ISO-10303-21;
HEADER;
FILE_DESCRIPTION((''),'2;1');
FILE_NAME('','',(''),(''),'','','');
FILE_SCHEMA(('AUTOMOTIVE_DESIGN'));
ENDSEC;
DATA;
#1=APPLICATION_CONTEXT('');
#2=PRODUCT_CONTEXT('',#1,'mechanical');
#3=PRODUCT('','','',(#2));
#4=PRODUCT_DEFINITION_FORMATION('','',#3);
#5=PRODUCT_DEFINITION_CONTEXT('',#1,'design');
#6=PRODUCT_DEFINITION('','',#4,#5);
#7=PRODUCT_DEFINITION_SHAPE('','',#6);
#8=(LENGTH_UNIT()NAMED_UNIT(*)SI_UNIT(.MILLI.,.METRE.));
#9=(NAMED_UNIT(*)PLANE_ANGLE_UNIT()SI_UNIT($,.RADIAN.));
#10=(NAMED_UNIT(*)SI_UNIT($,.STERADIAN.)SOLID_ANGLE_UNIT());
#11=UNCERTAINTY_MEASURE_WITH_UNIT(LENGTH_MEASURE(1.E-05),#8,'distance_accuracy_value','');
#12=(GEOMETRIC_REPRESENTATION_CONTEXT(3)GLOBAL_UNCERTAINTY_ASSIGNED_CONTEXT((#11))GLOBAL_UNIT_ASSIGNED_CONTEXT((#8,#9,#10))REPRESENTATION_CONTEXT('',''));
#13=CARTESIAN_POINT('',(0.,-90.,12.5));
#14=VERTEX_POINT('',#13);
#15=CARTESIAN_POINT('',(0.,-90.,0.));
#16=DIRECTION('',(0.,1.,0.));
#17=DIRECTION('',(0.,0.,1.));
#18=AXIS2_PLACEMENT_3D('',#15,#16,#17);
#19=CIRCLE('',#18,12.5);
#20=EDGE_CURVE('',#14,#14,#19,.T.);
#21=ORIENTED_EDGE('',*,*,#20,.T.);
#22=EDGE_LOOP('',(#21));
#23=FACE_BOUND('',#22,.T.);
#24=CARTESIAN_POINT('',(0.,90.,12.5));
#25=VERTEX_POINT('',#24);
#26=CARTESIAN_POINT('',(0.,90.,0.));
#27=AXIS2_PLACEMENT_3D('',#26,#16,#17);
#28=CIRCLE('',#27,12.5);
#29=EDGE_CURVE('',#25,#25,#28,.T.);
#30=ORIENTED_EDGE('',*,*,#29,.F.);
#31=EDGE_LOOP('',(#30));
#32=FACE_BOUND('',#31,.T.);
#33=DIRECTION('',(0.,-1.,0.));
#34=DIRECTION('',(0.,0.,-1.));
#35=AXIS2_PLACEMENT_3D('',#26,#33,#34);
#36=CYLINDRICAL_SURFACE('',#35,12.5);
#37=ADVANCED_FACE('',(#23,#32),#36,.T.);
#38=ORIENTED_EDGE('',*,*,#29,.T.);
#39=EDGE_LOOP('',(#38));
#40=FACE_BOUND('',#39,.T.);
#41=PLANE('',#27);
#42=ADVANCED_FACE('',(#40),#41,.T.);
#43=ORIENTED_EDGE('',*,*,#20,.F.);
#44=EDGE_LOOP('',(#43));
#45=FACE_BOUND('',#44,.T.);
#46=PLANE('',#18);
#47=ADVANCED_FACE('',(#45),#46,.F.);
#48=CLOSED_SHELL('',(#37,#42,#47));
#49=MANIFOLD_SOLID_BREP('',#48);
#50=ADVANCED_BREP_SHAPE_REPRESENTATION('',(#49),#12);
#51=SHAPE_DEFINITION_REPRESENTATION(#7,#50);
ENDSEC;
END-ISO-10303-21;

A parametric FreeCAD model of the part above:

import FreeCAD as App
import Part
import Sketcher
from FreeCAD import Vector

doc = App.newDocument("Part")
body = doc.addObject("PartDesign::Body", "Body")

sketch1 = body.newObject("Sketcher::SketchObject", "Sketch")
sketch1.AttachmentSupport = (doc.getObject("XZ_Plane"), [""])
sketch1.MapMode = "FlatFace"
sketch1.addGeometry(Part.Circle(Vector(0, 0, 0), Vector(0, 0, 1), 12.5), False)
sketch1.addConstraint(Sketcher.Constraint("Coincident", 0, 3, -1, 1))
sketch1.addConstraint(Sketcher.Constraint("Diameter", 0, 25.0))
pad1 = body.newObject("PartDesign::Pad", "Pad")
pad1.Profile = sketch1
pad1.Length = 180
pad1.Midplane = True

doc.recompute()
